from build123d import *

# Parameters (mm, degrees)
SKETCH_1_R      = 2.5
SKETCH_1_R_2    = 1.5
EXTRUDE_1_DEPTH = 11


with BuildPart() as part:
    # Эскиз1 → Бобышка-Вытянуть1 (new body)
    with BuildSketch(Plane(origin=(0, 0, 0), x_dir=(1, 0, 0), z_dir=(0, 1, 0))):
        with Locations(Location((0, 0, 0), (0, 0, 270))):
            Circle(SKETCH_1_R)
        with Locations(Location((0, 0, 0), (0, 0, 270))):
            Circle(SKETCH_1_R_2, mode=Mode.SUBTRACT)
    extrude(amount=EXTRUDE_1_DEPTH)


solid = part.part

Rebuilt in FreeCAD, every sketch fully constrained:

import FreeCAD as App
import Part
import Sketcher
Q = App.Units.Quantity

doc = App.newDocument("Part")
params = doc.addObject("Spreadsheet::Sheet", "Params")
for row, (alias, value) in enumerate([
    ("sketch1_diameter", "5 mm"),
    ("sketch1_diameter2", "3 mm"),
    ("pad1_length", "11 mm"),
], start=1):
    params.set(f"A{row}", alias)
    params.set(f"B{row}", "=" + value)
    params.setAlias(f"B{row}", alias)

body = doc.addObject("PartDesign::Body", "Body")

# Sketch on XZ plane
sketch1 = body.newObject("Sketcher::SketchObject", "Sketch")
sketch1.AttachmentSupport = (doc.getObject("XZ_Plane"), [""])
sketch1.MapMode = "FlatFace"
sketch1.addGeometry([
    Part.Circle(App.Vector(0, 0, 0), App.Vector(0, 0, 1), 2.5),
    Part.Circle(App.Vector(0, 0, 0), App.Vector(0, 0, 1), 1.5),
], False)
sketch1.addConstraint([
    Sketcher.Constraint("Coincident", 0, 3, -1, 1),
    Sketcher.Constraint("Coincident", 1, 3, -1, 1),
    Sketcher.Constraint("Diameter", 0, Q("5 mm")),
    Sketcher.Constraint("Diameter", 1, Q("3 mm")),
])
sketch1.setExpression("Constraints[2]", "Params.sketch1_diameter")
sketch1.setExpression("Constraints[3]", "Params.sketch1_diameter2")
pad1 = body.newObject("PartDesign::Pad", "Pad")
pad1.Profile = sketch1
pad1.setExpression("Length", "Params.pad1_length")
pad1.Reversed = True

doc.recompute()
